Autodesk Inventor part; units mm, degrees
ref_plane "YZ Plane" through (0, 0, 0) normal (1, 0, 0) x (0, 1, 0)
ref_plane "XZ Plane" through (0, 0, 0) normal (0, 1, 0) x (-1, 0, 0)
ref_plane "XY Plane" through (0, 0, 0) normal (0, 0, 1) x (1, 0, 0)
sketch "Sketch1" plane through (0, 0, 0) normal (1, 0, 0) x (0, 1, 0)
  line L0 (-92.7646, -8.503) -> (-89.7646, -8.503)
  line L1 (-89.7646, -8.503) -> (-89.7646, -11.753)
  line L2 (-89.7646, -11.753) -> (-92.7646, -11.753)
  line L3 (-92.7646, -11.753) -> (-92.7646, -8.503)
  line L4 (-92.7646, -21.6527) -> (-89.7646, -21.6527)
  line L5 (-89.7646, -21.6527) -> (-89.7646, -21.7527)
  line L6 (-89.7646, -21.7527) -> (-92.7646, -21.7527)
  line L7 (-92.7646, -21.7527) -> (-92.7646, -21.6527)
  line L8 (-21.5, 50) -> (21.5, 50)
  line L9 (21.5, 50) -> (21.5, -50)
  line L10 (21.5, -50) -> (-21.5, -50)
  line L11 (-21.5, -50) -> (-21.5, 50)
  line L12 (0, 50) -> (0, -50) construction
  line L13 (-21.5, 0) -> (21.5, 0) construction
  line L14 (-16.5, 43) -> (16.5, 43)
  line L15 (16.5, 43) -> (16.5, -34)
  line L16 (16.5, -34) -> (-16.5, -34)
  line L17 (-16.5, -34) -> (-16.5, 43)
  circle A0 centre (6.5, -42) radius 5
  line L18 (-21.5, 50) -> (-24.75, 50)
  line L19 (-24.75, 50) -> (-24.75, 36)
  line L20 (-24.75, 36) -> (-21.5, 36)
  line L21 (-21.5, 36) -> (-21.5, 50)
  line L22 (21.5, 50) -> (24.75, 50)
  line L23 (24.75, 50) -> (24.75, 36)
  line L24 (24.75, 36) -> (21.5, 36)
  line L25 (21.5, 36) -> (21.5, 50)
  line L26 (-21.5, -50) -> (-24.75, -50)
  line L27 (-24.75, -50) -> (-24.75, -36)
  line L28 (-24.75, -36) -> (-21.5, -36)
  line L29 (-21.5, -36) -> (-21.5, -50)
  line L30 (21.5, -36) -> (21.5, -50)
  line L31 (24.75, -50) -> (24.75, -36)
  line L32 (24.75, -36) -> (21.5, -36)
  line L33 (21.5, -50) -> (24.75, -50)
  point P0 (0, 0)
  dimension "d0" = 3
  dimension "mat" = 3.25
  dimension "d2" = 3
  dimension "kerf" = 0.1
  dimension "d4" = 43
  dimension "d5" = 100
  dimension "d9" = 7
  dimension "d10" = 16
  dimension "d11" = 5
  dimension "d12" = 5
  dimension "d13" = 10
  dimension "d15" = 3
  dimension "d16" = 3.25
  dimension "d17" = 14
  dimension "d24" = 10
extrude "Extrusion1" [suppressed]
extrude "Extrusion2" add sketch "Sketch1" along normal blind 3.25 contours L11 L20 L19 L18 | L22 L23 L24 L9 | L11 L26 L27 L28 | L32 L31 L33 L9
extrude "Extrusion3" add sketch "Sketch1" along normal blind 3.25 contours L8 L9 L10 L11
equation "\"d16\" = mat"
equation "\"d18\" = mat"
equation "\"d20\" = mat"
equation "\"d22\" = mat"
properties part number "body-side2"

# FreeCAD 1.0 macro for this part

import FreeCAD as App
import Part
import Sketcher

V = App.Vector

doc = App.newDocument("Part")
params = doc.addObject("Spreadsheet::Sheet", "Params")
for row, (alias, value) in enumerate([
    ("sketch1_height", "14 mm"),
    ("sketch1_width", "3.25 mm"),
    ("pad1_length", "3.25 mm"),
    ("sketch2_diameter", "10 mm"),
    ("sketch2_width", "43 mm"),
    ("sketch2_height", "100 mm"),
    ("pad2_length", "3.25 mm"),
], start=1):
    params.set(f"A{row}", alias)
    params.set(f"B{row}", "=" + value)
    params.setAlias(f"B{row}", alias)

body = doc.addObject("PartDesign::Body", "Body")
body.AllowCompound = True

# Sketch on YZ plane
sketch1 = body.newObject("Sketcher::SketchObject", "Sketch")
sketch1.AttachmentSupport = (doc.getObject("YZ_Plane"), [""])
sketch1.MapMode = "FlatFace"
sketch1.addGeometry(Part.LineSegment(V(-21.5, 36, 0), V(-21.5, 50, 0)), False)
sketch1.addGeometry(Part.LineSegment(V(-21.5, 50, 0), V(-24.8, 50, 0)), False)
sketch1.addGeometry(Part.LineSegment(V(-24.8, 50, 0), V(-24.8, 36, 0)), False)
sketch1.addGeometry(Part.LineSegment(V(-24.8, 36, 0), V(-21.5, 36, 0)), False)
sketch1.addGeometry(Part.LineSegment(V(24.8, 50, 0), V(21.5, 50, 0)), False)
sketch1.addGeometry(Part.LineSegment(V(21.5, 50, 0), V(21.5, 36, 0)), False)
sketch1.addGeometry(Part.LineSegment(V(21.5, 36, 0), V(24.8, 36, 0)), False)
sketch1.addGeometry(Part.LineSegment(V(24.8, 36, 0), V(24.8, 50, 0)), False)
sketch1.addGeometry(Part.LineSegment(V(-21.5, -50, 0), V(-21.5, -36, 0)), False)
sketch1.addGeometry(Part.LineSegment(V(-21.5, -36, 0), V(-24.8, -36, 0)), False)
sketch1.addGeometry(Part.LineSegment(V(-24.8, -36, 0), V(-24.8, -50, 0)), False)
sketch1.addGeometry(Part.LineSegment(V(-24.8, -50, 0), V(-21.5, -50, 0)), False)
sketch1.addGeometry(Part.LineSegment(V(24.8, -36, 0), V(21.5, -36, 0)), False)
sketch1.addGeometry(Part.LineSegment(V(21.5, -36, 0), V(21.5, -50, 0)), False)
sketch1.addGeometry(Part.LineSegment(V(21.5, -50, 0), V(24.8, -50, 0)), False)
sketch1.addGeometry(Part.LineSegment(V(24.8, -50, 0), V(24.8, -36, 0)), False)
sketch1.addConstraint(Sketcher.Constraint("Coincident", 0, 2, 1, 1))
sketch1.addConstraint(Sketcher.Constraint("Coincident", 1, 2, 2, 1))
sketch1.addConstraint(Sketcher.Constraint("Coincident", 2, 2, 3, 1))
sketch1.addConstraint(Sketcher.Constraint("Coincident", 3, 2, 0, 1))
sketch1.addConstraint(Sketcher.Constraint("Coincident", 4, 2, 5, 1))
sketch1.addConstraint(Sketcher.Constraint("Coincident", 5, 2, 6, 1))
sketch1.addConstraint(Sketcher.Constraint("Coincident", 6, 2, 7, 1))
sketch1.addConstraint(Sketcher.Constraint("Coincident", 7, 2, 4, 1))
sketch1.addConstraint(Sketcher.Constraint("Coincident", 8, 2, 9, 1))
sketch1.addConstraint(Sketcher.Constraint("Coincident", 9, 2, 10, 1))
sketch1.addConstraint(Sketcher.Constraint("Coincident", 10, 2, 11, 1))
sketch1.addConstraint(Sketcher.Constraint("Coincident", 11, 2, 8, 1))
sketch1.addConstraint(Sketcher.Constraint("Coincident", 12, 2, 13, 1))
sketch1.addConstraint(Sketcher.Constraint("Coincident", 13, 2, 14, 1))
sketch1.addConstraint(Sketcher.Constraint("Coincident", 14, 2, 15, 1))
sketch1.addConstraint(Sketcher.Constraint("Coincident", 15, 2, 12, 1))
sketch1.addConstraint(Sketcher.Constraint("Vertical", 0))
sketch1.addConstraint(Sketcher.Constraint("Horizontal", 1))
sketch1.addConstraint(Sketcher.Constraint("Vertical", 2))
sketch1.addConstraint(Sketcher.Constraint("Horizontal", 3))
sketch1.addConstraint(Sketcher.Constraint("Horizontal", 4))
sketch1.addConstraint(Sketcher.Constraint("Vertical", 5))
sketch1.addConstraint(Sketcher.Constraint("Horizontal", 6))
sketch1.addConstraint(Sketcher.Constraint("Vertical", 7))
sketch1.addConstraint(Sketcher.Constraint("Vertical", 8))
sketch1.addConstraint(Sketcher.Constraint("Horizontal", 9))
sketch1.addConstraint(Sketcher.Constraint("Vertical", 10))
sketch1.addConstraint(Sketcher.Constraint("Horizontal", 11))
sketch1.addConstraint(Sketcher.Constraint("Horizontal", 12))
sketch1.addConstraint(Sketcher.Constraint("Vertical", 13))
sketch1.addConstraint(Sketcher.Constraint("Horizontal", 14))
sketch1.addConstraint(Sketcher.Constraint("Vertical", 15))
sketch1.addConstraint(Sketcher.Constraint("Symmetric", 5, 2, 8, 2, -1, 1))
sketch1.addConstraint(Sketcher.Constraint("Symmetric", 7, 2, 10, 2, -1, 1))
sketch1.addConstraint(Sketcher.Constraint("Symmetric", 3, 2, 12, 2, -1, 1))
sketch1.addConstraint(Sketcher.Constraint("Symmetric", 1, 2, 14, 2, -1, 1))
sketch1.addConstraint(Sketcher.Constraint("Symmetric", 0, 2, 4, 2, -2))
sketch1.addConstraint(Sketcher.Constraint("Symmetric", 2, 2, 6, 2, -2))
sketch1.addConstraint(Sketcher.Constraint("DistanceY", 0, 1, 0, 2, 14.0))
sketch1.addConstraint(Sketcher.Constraint("DistanceX", 0, 2, 4, 2, 43.0))
sketch1.addConstraint(Sketcher.Constraint("DistanceX", 1, 2, 1, 1, 3.25))
sketch1.addConstraint(Sketcher.Constraint("DistanceY", -1, 1, 0, 2, 50.0))
sketch1.setExpression("Constraints[38]", "Params.sketch1_height")
sketch1.setExpression("Constraints[40]", "Params.sketch1_width")
pad1 = body.newObject("PartDesign::Pad", "Pad")
pad1.Profile = sketch1
pad1.setExpression("Length", "Params.pad1_length")

# Sketch on YZ plane
sketch2 = body.newObject("Sketcher::SketchObject", "Sketch001")
sketch2.AttachmentSupport = (doc.getObject("YZ_Plane"), [""])
sketch2.MapMode = "FlatFace"
sketch2.addGeometry(Part.LineSegment(V(22, 50, 0), V(-22, 50, 0)), False)
sketch2.addGeometry(Part.LineSegment(V(-22, 50, 0), V(-22, -50, 0)), False)
sketch2.addGeometry(Part.LineSegment(V(-22, -50, 0), V(22, -50, 0)), False)
sketch2.addGeometry(Part.LineSegment(V(22, -50, 0), V(22, 50, 0)), False)
sketch2.addGeometry(Part.Circle(V(6, -42, 0), V(0, 0, 1), 5), False)
sketch2.addGeometry(Part.LineSegment(V(-16, -34, 0), V(-16, 43, 0)), False)
sketch2.addGeometry(Part.LineSegment(V(-16, 43, 0), V(16, 43, 0)), False)
sketch2.addGeometry(Part.LineSegment(V(16, 43, 0), V(16, -34, 0)), False)
sketch2.addGeometry(Part.LineSegment(V(16, -34, 0), V(-16, -34, 0)), False)
sketch2.addConstraint(Sketcher.Constraint("Coincident", 0, 2, 1, 1))
sketch2.addConstraint(Sketcher.Constraint("Coincident", 1, 2, 2, 1))
sketch2.addConstraint(Sketcher.Constraint("Coincident", 2, 2, 3, 1))
sketch2.addConstraint(Sketcher.Constraint("Coincident", 3, 2, 0, 1))
sketch2.addConstraint(Sketcher.Constraint("Coincident", 5, 2, 6, 1))
sketch2.addConstraint(Sketcher.Constraint("Coincident", 6, 2, 7, 1))
sketch2.addConstraint(Sketcher.Constraint("Coincident", 7, 2, 8, 1))
sketch2.addConstraint(Sketcher.Constraint("Coincident", 8, 2, 5, 1))
sketch2.addConstraint(Sketcher.Constraint("Horizontal", 0))
sketch2.addConstraint(Sketcher.Constraint("Vertical", 1))
sketch2.addConstraint(Sketcher.Constraint("Horizontal", 2))
sketch2.addConstraint(Sketcher.Constraint("Vertical", 3))
sketch2.addConstraint(Sketcher.Constraint("Vertical", 5))
sketch2.addConstraint(Sketcher.Constraint("Horizontal", 6))
sketch2.addConstraint(Sketcher.Constraint("Vertical", 7))
sketch2.addConstraint(Sketcher.Constraint("Horizontal", 8))
sketch2.addConstraint(Sketcher.Constraint("Symmetric", 0, 2, 2, 2, -1, 1))
sketch2.addConstraint(Sketcher.Constraint("Diameter", 4, 10.0))
sketch2.addConstraint(Sketcher.Constraint("DistanceX", 0, 2, 0, 1, 43.0))
sketch2.addConstraint(Sketcher.Constraint("DistanceY", 1, 2, 1, 1, 100.0))
sketch2.addConstraint(Sketcher.Constraint("DistanceY", -1, 1, 5, 2, 43.0))
sketch2.addConstraint(Sketcher.Constraint("DistanceX", 0, 2, 5, 2, 5.0))
sketch2.addConstraint(Sketcher.Constraint("DistanceX", 6, 2, 3, 2, 5.0))
sketch2.addConstraint(Sketcher.Constraint("DistanceX", 4, 3, 6, 2, 10.0))
sketch2.addConstraint(Sketcher.Constraint("DistanceY", 2, 2, 7, 2, 16.0))
sketch2.addConstraint(Sketcher.Constraint("DistanceY", 4, 3, -1, 1, 42.0))
sketch2.setExpression("Constraints[17]", "Params.sketch2_diameter")
sketch2.setExpression("Constraints[18]", "Params.sketch2_width")
sketch2.setExpression("Constraints[19]", "Params.sketch2_height")
pad2 = body.newObject("PartDesign::Pad", "Pad001")
pad2.Profile = sketch2
pad2.setExpression("Length", "Params.pad2_length")

doc.recompute()
